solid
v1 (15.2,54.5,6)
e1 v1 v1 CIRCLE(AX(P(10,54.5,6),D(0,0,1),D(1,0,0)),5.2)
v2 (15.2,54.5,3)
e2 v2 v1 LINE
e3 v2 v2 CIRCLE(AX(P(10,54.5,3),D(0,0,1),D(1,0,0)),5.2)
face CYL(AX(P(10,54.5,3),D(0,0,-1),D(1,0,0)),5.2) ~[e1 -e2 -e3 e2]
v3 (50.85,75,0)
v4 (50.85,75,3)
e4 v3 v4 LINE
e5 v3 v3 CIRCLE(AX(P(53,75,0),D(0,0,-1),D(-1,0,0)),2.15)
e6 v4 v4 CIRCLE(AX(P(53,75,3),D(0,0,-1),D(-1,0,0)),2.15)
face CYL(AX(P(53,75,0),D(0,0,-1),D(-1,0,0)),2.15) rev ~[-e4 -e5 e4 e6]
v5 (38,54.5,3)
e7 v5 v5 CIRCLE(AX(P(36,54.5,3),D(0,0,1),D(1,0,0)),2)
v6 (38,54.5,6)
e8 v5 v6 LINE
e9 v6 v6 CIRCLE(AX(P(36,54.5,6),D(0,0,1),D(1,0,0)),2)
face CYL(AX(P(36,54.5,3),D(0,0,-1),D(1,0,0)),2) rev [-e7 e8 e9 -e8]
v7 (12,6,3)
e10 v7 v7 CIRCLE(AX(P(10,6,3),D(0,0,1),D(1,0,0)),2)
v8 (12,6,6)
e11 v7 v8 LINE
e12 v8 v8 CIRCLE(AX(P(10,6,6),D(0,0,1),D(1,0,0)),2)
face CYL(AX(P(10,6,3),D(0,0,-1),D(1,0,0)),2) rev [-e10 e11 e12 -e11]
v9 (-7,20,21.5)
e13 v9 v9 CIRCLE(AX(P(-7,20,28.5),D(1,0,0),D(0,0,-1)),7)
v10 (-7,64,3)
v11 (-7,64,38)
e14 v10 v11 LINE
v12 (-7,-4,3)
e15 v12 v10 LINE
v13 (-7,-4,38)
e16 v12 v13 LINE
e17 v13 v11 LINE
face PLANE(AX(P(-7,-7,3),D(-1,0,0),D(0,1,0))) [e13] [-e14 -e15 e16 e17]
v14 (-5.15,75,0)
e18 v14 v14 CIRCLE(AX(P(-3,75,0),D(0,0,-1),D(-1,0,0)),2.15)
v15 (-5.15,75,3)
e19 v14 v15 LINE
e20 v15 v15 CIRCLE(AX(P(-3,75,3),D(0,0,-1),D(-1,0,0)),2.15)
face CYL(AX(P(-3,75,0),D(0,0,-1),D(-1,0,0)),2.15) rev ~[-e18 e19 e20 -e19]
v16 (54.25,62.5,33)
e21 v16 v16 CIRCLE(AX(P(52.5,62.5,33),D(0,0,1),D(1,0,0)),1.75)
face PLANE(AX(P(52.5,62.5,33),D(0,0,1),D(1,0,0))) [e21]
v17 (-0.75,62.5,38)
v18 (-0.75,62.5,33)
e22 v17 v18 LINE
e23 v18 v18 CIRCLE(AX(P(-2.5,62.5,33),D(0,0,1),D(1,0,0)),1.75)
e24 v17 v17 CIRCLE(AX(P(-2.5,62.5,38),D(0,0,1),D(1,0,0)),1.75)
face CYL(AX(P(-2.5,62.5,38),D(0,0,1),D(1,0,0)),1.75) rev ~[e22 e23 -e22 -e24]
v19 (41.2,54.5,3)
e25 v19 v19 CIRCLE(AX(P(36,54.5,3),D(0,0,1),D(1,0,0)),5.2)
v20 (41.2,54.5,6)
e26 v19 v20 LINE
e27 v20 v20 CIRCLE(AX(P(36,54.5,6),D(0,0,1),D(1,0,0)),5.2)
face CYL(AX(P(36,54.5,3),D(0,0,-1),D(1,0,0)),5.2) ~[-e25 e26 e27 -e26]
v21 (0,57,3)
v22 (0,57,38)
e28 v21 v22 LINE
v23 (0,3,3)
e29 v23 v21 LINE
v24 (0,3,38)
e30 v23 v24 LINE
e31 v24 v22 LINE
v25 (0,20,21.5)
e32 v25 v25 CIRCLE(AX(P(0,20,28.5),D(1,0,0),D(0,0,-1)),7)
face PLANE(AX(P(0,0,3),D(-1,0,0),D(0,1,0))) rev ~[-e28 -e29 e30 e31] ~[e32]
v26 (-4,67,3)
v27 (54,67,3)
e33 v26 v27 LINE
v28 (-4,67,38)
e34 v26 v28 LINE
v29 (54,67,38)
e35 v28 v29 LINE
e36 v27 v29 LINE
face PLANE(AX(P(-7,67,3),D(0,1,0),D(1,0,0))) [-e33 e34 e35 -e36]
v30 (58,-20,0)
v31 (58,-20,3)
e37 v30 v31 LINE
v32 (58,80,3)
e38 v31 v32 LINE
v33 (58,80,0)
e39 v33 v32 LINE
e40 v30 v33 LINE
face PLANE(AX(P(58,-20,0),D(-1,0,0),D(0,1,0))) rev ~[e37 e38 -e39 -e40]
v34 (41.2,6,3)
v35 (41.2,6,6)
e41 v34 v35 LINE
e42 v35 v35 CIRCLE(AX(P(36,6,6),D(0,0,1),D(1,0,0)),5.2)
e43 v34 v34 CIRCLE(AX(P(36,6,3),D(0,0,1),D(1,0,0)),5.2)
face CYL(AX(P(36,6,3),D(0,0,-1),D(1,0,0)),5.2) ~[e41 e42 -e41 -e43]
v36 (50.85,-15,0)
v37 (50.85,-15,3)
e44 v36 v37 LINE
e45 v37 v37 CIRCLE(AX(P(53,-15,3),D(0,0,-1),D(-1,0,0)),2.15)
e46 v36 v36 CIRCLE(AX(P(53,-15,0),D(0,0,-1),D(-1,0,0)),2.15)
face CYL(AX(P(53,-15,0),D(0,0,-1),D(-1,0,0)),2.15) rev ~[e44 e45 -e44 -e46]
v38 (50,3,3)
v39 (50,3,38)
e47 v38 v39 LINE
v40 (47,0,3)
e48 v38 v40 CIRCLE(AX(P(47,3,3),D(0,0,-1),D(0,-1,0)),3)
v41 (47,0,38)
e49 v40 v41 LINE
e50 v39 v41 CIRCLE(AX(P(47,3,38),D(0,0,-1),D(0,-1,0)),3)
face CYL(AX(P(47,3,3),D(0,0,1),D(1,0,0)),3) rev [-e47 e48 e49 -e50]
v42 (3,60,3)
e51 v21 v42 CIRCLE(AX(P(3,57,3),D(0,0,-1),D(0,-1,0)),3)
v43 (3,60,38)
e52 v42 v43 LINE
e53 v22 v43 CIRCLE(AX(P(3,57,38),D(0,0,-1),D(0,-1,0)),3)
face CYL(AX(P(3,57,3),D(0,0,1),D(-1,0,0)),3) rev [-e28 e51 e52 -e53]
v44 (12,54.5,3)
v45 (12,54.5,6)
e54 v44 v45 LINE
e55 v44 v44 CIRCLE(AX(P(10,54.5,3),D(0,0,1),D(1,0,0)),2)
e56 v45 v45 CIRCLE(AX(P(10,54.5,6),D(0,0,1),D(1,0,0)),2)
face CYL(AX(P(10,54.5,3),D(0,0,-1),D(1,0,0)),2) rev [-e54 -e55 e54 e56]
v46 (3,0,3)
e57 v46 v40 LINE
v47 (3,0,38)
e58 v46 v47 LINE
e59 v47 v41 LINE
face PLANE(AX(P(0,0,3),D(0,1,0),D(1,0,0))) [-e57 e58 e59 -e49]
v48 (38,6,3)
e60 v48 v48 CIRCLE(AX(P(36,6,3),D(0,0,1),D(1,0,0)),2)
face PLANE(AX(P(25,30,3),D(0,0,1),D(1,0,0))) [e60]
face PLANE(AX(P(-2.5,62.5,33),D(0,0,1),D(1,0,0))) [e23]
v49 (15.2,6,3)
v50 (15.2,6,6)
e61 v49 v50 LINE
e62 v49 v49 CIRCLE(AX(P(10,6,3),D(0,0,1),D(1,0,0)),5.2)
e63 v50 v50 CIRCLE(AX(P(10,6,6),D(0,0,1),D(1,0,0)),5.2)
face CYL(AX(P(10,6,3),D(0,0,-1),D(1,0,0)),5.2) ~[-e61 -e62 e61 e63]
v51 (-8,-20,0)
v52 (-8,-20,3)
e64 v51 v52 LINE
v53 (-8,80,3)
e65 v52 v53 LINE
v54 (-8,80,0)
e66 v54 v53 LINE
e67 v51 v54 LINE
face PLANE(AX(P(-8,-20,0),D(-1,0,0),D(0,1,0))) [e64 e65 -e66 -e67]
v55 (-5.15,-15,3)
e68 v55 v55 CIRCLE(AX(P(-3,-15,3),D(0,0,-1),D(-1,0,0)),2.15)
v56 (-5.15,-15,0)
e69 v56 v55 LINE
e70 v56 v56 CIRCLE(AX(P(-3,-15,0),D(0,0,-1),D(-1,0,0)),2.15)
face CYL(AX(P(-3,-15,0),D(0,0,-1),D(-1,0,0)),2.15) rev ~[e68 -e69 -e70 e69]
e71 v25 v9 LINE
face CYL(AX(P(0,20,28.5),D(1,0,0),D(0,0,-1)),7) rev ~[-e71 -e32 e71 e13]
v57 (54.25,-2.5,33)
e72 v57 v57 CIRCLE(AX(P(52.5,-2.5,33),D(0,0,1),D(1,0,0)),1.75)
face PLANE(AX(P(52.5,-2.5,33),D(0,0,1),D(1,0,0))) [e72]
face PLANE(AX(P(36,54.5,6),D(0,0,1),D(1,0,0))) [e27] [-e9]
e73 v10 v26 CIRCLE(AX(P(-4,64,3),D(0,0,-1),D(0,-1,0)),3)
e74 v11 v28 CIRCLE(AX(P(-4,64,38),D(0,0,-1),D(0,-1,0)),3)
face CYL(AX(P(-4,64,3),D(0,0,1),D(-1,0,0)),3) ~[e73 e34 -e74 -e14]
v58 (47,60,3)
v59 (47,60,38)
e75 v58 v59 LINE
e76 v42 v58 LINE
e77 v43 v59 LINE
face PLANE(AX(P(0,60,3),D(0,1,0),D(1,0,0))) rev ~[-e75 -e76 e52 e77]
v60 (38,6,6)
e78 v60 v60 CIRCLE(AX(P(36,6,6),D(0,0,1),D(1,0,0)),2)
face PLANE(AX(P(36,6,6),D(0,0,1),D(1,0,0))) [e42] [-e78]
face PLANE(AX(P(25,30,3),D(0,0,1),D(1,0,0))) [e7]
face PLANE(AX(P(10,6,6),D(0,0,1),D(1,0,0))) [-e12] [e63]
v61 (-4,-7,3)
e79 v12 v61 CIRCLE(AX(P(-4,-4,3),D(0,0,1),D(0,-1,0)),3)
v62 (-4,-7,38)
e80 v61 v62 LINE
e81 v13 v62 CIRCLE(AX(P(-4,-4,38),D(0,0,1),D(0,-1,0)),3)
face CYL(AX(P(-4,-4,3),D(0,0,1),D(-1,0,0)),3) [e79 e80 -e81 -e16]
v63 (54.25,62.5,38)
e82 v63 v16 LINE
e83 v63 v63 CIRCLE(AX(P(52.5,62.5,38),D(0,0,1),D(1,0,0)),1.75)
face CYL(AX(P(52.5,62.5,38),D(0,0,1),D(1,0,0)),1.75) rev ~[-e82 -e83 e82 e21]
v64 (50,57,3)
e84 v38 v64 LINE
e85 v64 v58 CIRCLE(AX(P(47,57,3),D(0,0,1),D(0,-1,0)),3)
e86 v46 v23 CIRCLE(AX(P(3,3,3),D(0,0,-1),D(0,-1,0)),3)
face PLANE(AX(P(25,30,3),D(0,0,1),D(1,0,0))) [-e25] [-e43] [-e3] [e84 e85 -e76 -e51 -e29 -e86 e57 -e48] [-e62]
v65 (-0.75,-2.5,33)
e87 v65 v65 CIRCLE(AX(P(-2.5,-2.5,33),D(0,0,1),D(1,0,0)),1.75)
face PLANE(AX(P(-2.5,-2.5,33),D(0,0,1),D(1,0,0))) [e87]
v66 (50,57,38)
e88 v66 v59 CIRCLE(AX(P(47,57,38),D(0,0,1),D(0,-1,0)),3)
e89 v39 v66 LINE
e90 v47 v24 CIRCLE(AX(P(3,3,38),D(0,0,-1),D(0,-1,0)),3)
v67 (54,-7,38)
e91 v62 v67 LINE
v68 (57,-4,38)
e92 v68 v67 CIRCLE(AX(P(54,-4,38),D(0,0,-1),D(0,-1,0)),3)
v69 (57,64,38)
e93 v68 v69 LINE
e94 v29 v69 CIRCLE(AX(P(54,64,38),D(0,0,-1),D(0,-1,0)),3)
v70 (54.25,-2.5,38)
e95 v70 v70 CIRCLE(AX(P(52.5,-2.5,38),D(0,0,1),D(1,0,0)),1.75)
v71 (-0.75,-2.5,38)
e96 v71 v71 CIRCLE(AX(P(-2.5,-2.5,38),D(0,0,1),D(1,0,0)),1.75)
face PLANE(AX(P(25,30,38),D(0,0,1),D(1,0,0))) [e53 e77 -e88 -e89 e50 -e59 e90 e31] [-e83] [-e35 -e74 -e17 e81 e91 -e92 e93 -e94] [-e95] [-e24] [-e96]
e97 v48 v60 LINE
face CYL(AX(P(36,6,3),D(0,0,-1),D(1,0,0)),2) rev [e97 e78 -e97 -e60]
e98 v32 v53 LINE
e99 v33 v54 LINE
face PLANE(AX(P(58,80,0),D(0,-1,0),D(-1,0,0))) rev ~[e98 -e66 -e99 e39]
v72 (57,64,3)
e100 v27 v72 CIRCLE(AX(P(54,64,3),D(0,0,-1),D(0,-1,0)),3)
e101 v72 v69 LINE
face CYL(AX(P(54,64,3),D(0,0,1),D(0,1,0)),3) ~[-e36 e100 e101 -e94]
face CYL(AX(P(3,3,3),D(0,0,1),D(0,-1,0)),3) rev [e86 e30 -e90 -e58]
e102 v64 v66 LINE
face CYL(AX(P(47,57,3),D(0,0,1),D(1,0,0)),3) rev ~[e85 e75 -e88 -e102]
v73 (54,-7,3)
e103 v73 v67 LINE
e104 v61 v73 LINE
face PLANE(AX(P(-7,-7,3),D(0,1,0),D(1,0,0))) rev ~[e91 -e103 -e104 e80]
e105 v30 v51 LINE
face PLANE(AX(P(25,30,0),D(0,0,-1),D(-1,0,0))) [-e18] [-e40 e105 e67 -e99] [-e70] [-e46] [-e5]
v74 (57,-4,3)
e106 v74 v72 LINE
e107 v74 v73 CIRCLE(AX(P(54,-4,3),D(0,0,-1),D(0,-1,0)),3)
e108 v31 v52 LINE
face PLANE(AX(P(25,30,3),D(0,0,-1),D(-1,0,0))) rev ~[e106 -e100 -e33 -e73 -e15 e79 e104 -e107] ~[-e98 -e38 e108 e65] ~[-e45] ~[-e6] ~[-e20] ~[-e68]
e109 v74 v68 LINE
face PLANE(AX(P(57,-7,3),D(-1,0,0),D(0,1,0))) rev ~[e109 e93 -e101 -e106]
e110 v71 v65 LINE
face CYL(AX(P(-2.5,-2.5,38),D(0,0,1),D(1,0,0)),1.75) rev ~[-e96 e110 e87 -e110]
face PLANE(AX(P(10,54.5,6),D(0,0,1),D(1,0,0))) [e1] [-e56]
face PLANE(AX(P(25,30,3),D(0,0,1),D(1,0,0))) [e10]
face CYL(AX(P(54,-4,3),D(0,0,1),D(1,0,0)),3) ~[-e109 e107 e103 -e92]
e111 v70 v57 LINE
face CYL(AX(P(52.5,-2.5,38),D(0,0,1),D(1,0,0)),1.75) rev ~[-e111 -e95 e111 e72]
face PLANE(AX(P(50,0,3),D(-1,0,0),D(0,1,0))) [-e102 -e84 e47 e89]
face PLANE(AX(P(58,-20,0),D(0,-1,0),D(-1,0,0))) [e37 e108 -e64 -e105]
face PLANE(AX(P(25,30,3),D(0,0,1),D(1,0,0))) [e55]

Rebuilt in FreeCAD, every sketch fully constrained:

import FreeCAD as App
import Part
import Sketcher
from FreeCAD import Vector
Q = App.Units.Quantity


def edges_at(feature, points):
    """Names of the edges that pass closest to the given points."""
    edges = feature.Shape.Edges
    near = lambda p: min(range(len(edges)), key=lambda i: edges[i].distToShape(Part.Vertex(*p))[0])
    return sorted({f"Edge{near(p) + 1}" for p in points})


def add_polygon(sketch, points):
    """Adds a closed chain of lines whose ends are joined by coincident constraints."""
    first, n = sketch.GeometryCount, len(points)
    for a, b in zip(points, points[1:] + points[:1]):
        sketch.addGeometry(Part.LineSegment(App.Vector(*a, 0), App.Vector(*b, 0)), False)
    for i in range(n):
        sketch.addConstraint(Sketcher.Constraint("Coincident", first + i, 2, first + (i + 1) % n, 1))

doc = App.newDocument("Part")
body = doc.addObject("PartDesign::Body", "Body")

# Sketch on XY plane
sketch1 = doc.addObject("Sketcher::SketchObject", "Sketch")
body.addObject(sketch1)
sketch1.AttachmentSupport = (doc.XY_Plane, [""])
sketch1.MapMode = "FlatFace"
add_polygon(sketch1, [(0, 60), (0, 0), (50, 0), (50, 60)])  # lines 0-3
sketch1.addConstraint(Sketcher.Constraint("Vertical", 0))
sketch1.addConstraint(Sketcher.Constraint("Horizontal", 1))
sketch1.addConstraint(Sketcher.Constraint("Vertical", 2))
sketch1.addConstraint(Sketcher.Constraint("Horizontal", 3))
sketch1.addConstraint(Sketcher.Constraint("Coincident", 0, 2, -1, 1))
sketch1.addConstraint(Sketcher.Constraint("DistanceX", 1, 1, 1, 2, Q("50 mm")))
sketch1.addConstraint(Sketcher.Constraint("DistanceY", 0, 2, 0, 1, Q("60 mm")))
pad1 = doc.addObject("PartDesign::Pad", "Pad")
body.addObject(pad1)
pad1.Profile = sketch1
pad1.Length = 3
body2 = doc.addObject("PartDesign::Body", "Body001")

# Sketch on XY plane
sketch2 = doc.addObject("Sketcher::SketchObject", "Sketch001")
body2.addObject(sketch2)
sketch2.AttachmentSupport = (doc.getObject("XY_Plane001"), [""])
sketch2.MapMode = "FlatFace"
sketch2.AttachmentOffset = App.Placement(Vector(0, 0, 3), App.Rotation())
add_polygon(sketch2, [(-7, 67), (-7, -7), (57, -7), (57, 67)])  # lines 0-3
add_polygon(sketch2, [(50, 0), (0, 0), (0, 60), (50, 60)])  # lines 4-7
sketch2.addConstraint(Sketcher.Constraint("Vertical", 0))
sketch2.addConstraint(Sketcher.Constraint("Horizontal", 1))
sketch2.addConstraint(Sketcher.Constraint("Vertical", 2))
sketch2.addConstraint(Sketcher.Constraint("Horizontal", 3))
sketch2.addConstraint(Sketcher.Constraint("Horizontal", 4))
sketch2.addConstraint(Sketcher.Constraint("Vertical", 5))
sketch2.addConstraint(Sketcher.Constraint("Horizontal", 6))
sketch2.addConstraint(Sketcher.Constraint("Vertical", 7))
sketch2.addConstraint(Sketcher.Constraint("Coincident", 4, 2, -1, 1))
sketch2.addConstraint(Sketcher.Constraint("DistanceX", 1, 1, 1, 2, Q("64 mm")))
sketch2.addConstraint(Sketcher.Constraint("DistanceX", 4, 2, 4, 1, Q("50 mm")))
sketch2.addConstraint(Sketcher.Constraint("DistanceY", 0, 2, 0, 1, Q("74 mm")))
sketch2.addConstraint(Sketcher.Constraint("DistanceY", 5, 1, 5, 2, Q("60 mm")))
sketch2.addConstraint(Sketcher.Constraint("DistanceX", 0, 2, -1, 1, Q("7 mm")))
sketch2.addConstraint(Sketcher.Constraint("DistanceY", 0, 2, -1, 1, Q("7 mm")))
pad2 = doc.addObject("PartDesign::Pad", "Pad001")
body2.addObject(pad2)
pad2.Profile = sketch2
pad2.Length = 35
body.AllowCompound = True
doc.recompute()

boolean = doc.addObject("PartDesign::Boolean", "Boolean")
body.addObject(boolean)
boolean.Type = "Fuse"
boolean.addObjects([body2])

# Sketch on XY plane
sketch3 = doc.addObject("Sketcher::SketchObject", "Sketch002")
body.addObject(sketch3)
sketch3.AttachmentSupport = (doc.XY_Plane, [""])
sketch3.MapMode = "FlatFace"
add_polygon(sketch3, [(58, 80), (58, -20), (-8, -20), (-8, 80)])  # lines 0-3
sketch3.addGeometry(Part.Circle(Vector(53, -15, 0), Vector(0, 0, 1), 2.15), False)  # 4
sketch3.addGeometry(Part.Circle(Vector(-3, -15, 0), Vector(0, 0, 1), 2.15), False)  # 5
sketch3.addGeometry(Part.Circle(Vector(53, 75, 0), Vector(0, 0, 1), 2.15), False)  # 6
add_polygon(sketch3, [(0, 0), (50, 0), (50, 60), (0, 60)])  # lines 7-10
sketch3.addGeometry(Part.Circle(Vector(-3, 75, 0), Vector(0, 0, 1), 2.15), False)  # 11
sketch3.addConstraint(Sketcher.Constraint("Vertical", 0))
sketch3.addConstraint(Sketcher.Constraint("Horizontal", 1))
sketch3.addConstraint(Sketcher.Constraint("Vertical", 2))
sketch3.addConstraint(Sketcher.Constraint("Horizontal", 3))
sketch3.addConstraint(Sketcher.Constraint("Horizontal", 7))
sketch3.addConstraint(Sketcher.Constraint("Vertical", 8))
sketch3.addConstraint(Sketcher.Constraint("Horizontal", 9))
sketch3.addConstraint(Sketcher.Constraint("Vertical", 10))
sketch3.addConstraint(Sketcher.Constraint("Coincident", 10, 2, -1, 1))
sketch3.addConstraint(Sketcher.Constraint("Equal", 4, 5))
sketch3.addConstraint(Sketcher.Constraint("Equal", 5, 6))
sketch3.addConstraint(Sketcher.Constraint("Equal", 6, 11))
sketch3.addConstraint(Sketcher.Constraint("Horizontal", 4, 3, 5, 3))
sketch3.addConstraint(Sketcher.Constraint("Horizontal", 6, 3, 11, 3))
sketch3.addConstraint(Sketcher.Constraint("Vertical", 4, 3, 6, 3))
sketch3.addConstraint(Sketcher.Constraint("Vertical", 5, 3, 11, 3))
sketch3.addConstraint(Sketcher.Constraint("Diameter", 4, Q("4.3 mm")))
sketch3.addConstraint(Sketcher.Constraint("DistanceX", 1, 2, 1, 1, Q("66 mm")))
sketch3.addConstraint(Sketcher.Constraint("DistanceX", 7, 1, 7, 2, Q("50 mm")))
sketch3.addConstraint(Sketcher.Constraint("DistanceY", 0, 2, 0, 1, Q("100 mm")))
sketch3.addConstraint(Sketcher.Constraint("DistanceY", 8, 1, 8, 2, Q("60 mm")))
sketch3.addConstraint(Sketcher.Constraint("DistanceX", -1, 1, 4, 3, Q("53 mm")))
sketch3.addConstraint(Sketcher.Constraint("DistanceY", 4, 3, -1, 1, Q("15 mm")))
sketch3.addConstraint(Sketcher.Constraint("DistanceX", 5, 3, -1, 1, Q("3 mm")))
sketch3.addConstraint(Sketcher.Constraint("DistanceY", -1, 1, 6, 3, Q("75 mm")))
sketch3.addConstraint(Sketcher.Constraint("DistanceX", -1, 1, 0, 2, Q("58 mm")))
sketch3.addConstraint(Sketcher.Constraint("DistanceY", 0, 2, -1, 1, Q("20 mm")))
pad3 = doc.addObject("PartDesign::Pad", "Pad002")
body.addObject(pad3)
pad3.Profile = sketch3
pad3.Length = 3

# Sketch on XY plane
sketch4 = doc.addObject("Sketcher::SketchObject", "Sketch003")
body.addObject(sketch4)
sketch4.AttachmentSupport = (doc.XY_Plane, [""])
sketch4.MapMode = "FlatFace"
sketch4.AttachmentOffset = App.Placement(Vector(0, 0, 3), App.Rotation())
sketch4.addGeometry(Part.Circle(Vector(10, 54.5, 0), Vector(0, 0, 1), 5.2), False)
sketch4.addGeometry(Part.Circle(Vector(10, 54.5, 0), Vector(0, 0, 1), 2), False)
sketch4.addGeometry(Part.Circle(Vector(36, 54.5, 0), Vector(0, 0, 1), 5.2), False)
sketch4.addGeometry(Part.Circle(Vector(36, 54.5, 0), Vector(0, 0, 1), 2), False)
sketch4.addGeometry(Part.Circle(Vector(36, 6, 0), Vector(0, 0, 1), 5.2), False)
sketch4.addGeometry(Part.Circle(Vector(36, 6, 0), Vector(0, 0, 1), 2), False)
sketch4.addGeometry(Part.Circle(Vector(10, 6, 0), Vector(0, 0, 1), 5.2), False)
sketch4.addGeometry(Part.Circle(Vector(10, 6, 0), Vector(0, 0, 1), 2), False)
sketch4.addConstraint(Sketcher.Constraint("Coincident", 1, 3, 0, 3))
sketch4.addConstraint(Sketcher.Constraint("Coincident", 3, 3, 2, 3))
sketch4.addConstraint(Sketcher.Constraint("Coincident", 5, 3, 4, 3))
sketch4.addConstraint(Sketcher.Constraint("Coincident", 7, 3, 6, 3))
sketch4.addConstraint(Sketcher.Constraint("Equal", 0, 2))
sketch4.addConstraint(Sketcher.Constraint("Equal", 1, 3))
sketch4.addConstraint(Sketcher.Constraint("Equal", 2, 4))
sketch4.addConstraint(Sketcher.Constraint("Equal", 3, 5))
sketch4.addConstraint(Sketcher.Constraint("Equal", 4, 6))
sketch4.addConstraint(Sketcher.Constraint("Equal", 5, 7))
sketch4.addConstraint(Sketcher.Constraint("Horizontal", 1, 3, 2, 3))
sketch4.addConstraint(Sketcher.Constraint("Horizontal", 5, 3, 6, 3))
sketch4.addConstraint(Sketcher.Constraint("Vertical", 3, 3, 4, 3))
sketch4.addConstraint(Sketcher.Constraint("Vertical", 1, 3, 6, 3))
sketch4.addConstraint(Sketcher.Constraint("Diameter", 1, Q("4 mm")))
sketch4.addConstraint(Sketcher.Constraint("Diameter", 0, Q("10.4 mm")))
sketch4.addConstraint(Sketcher.Constraint("DistanceX", -1, 1, 0, 3, Q("10 mm")))
sketch4.addConstraint(Sketcher.Constraint("DistanceX", -1, 1, 2, 3, Q("36 mm")))
sketch4.addConstraint(Sketcher.Constraint("DistanceY", -1, 1, 4, 3, Q("6 mm")))
sketch4.addConstraint(Sketcher.Constraint("DistanceY", -1, 1, 0, 3, Q("54.5 mm")))
pad4 = doc.addObject("PartDesign::Pad", "Pad003")
body.addObject(pad4)
pad4.Profile = sketch4
pad4.Length = 3
doc.recompute()

fillet = doc.addObject("PartDesign::Fillet", "Fillet")
body.addObject(fillet)
fillet.Base = (pad4, edges_at(pad4, [
    (-7, 67, 20.5),
    (-7, -7, 20.5),
    (57, -7, 20.5),
    (57, 67, 20.5),
]))
fillet.Radius = 3

# Sketch on YZ plane
sketch5 = doc.addObject("Sketcher::SketchObject", "Sketch004")
body.addObject(sketch5)
sketch5.AttachmentSupport = (doc.YZ_Plane, [""])
sketch5.MapMode = "FlatFace"
sketch5.addGeometry(Part.Circle(Vector(20, 28.5, 0), Vector(0, 0, 1), 7), False)
sketch5.addConstraint(Sketcher.Constraint("Diameter", 0, Q("14 mm")))
sketch5.addConstraint(Sketcher.Constraint("DistanceX", -1, 1, 0, 3, Q("20 mm")))
sketch5.addConstraint(Sketcher.Constraint("DistanceY", -1, 1, 0, 3, Q("28.5 mm")))
pocket1 = doc.addObject("PartDesign::Pocket", "Pocket")
body.addObject(pocket1)
pocket1.Profile = sketch5
pocket1.Type = "UpToFirst"
doc.recompute()

fillet2 = doc.addObject("PartDesign::Fillet", "Fillet001")
body.addObject(fillet2)
fillet2.Base = (pocket1, edges_at(pocket1, [(50, 60, 20.5)]))
fillet2.Radius = 3
doc.recompute()

fillet3 = doc.addObject("PartDesign::Fillet", "Fillet002")
body.addObject(fillet3)
fillet3.Base = (fillet2, edges_at(fillet2, [(50, 0, 20.5)]))
fillet3.Radius = 3
doc.recompute()

fillet4 = doc.addObject("PartDesign::Fillet", "Fillet003")
body.addObject(fillet4)
fillet4.Base = (fillet3, edges_at(fillet3, [(0, 0, 20.5)]))
fillet4.Radius = 3
doc.recompute()

fillet5 = doc.addObject("PartDesign::Fillet", "Fillet004")
body.addObject(fillet5)
fillet5.Base = (fillet4, edges_at(fillet4, [(0, 60, 20.5)]))
fillet5.Radius = 3

# Sketch on XY plane
sketch6 = doc.addObject("Sketcher::SketchObject", "Sketch005")
body.addObject(sketch6)
sketch6.AttachmentSupport = (doc.XY_Plane, [""])
sketch6.MapMode = "FlatFace"
sketch6.AttachmentOffset = App.Placement(Vector(0, 0, 38), App.Rotation())
sketch6.addGeometry(Part.Circle(Vector(-2.5, 62.5, 0), Vector(0, 0, 1), 1.75), False)
sketch6.addGeometry(Part.Circle(Vector(52.5, 62.5, 0), Vector(0, 0, 1), 1.75), False)
sketch6.addGeometry(Part.Circle(Vector(52.5, -2.5, 0), Vector(0, 0, 1), 1.75), False)
sketch6.addGeometry(Part.Circle(Vector(-2.5, -2.5, 0), Vector(0, 0, 1), 1.75), False)
sketch6.addConstraint(Sketcher.Constraint("Equal", 0, 1))
sketch6.addConstraint(Sketcher.Constraint("Equal", 1, 2))
sketch6.addConstraint(Sketcher.Constraint("Equal", 2, 3))
sketch6.addConstraint(Sketcher.Constraint("Horizontal", 0, 3, 1, 3))
sketch6.addConstraint(Sketcher.Constraint("Horizontal", 2, 3, 3, 3))
sketch6.addConstraint(Sketcher.Constraint("Vertical", 1, 3, 2, 3))
sketch6.addConstraint(Sketcher.Constraint("Vertical", 0, 3, 3, 3))
sketch6.addConstraint(Sketcher.Constraint("Diameter", 0, Q("3.5 mm")))
sketch6.addConstraint(Sketcher.Constraint("DistanceX", 0, 3, 1, 3, Q("55 mm")))
sketch6.addConstraint(Sketcher.Constraint("DistanceY", 2, 3, 1, 3, Q("65 mm")))
sketch6.addConstraint(Sketcher.Constraint("DistanceX", 0, 3, -1, 1, Q("2.5 mm")))
sketch6.addConstraint(Sketcher.Constraint("DistanceY", -1, 1, 0, 3, Q("62.5 mm")))
pocket2 = doc.addObject("PartDesign::Pocket", "Pocket001")
body.addObject(pocket2)
pocket2.Profile = sketch6
pocket2.Length = 5

doc.recompute()
